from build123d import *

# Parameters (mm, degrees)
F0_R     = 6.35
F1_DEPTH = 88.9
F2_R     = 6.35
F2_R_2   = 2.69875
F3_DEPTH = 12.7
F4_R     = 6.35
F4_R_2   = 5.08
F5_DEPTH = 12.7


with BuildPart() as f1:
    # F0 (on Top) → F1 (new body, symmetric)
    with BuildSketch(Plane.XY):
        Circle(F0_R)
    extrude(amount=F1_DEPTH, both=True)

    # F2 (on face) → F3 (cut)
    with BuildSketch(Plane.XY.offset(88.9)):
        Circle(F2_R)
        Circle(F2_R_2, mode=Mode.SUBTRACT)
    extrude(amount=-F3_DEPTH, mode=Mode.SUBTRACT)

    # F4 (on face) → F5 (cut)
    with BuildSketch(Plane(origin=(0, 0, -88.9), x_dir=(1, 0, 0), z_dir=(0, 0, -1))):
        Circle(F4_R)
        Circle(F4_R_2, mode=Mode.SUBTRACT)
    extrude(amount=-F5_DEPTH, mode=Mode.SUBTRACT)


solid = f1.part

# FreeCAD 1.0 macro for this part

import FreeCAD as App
import Part
import Sketcher
Q = App.Units.Quantity

doc = App.newDocument("Part")
body = doc.addObject("PartDesign::Body", "Body")

# Sketch on XY plane
sketch1 = body.newObject("Sketcher::SketchObject", "Sketch")
sketch1.AttachmentSupport = (doc.getObject("XY_Plane"), [""])
sketch1.MapMode = "FlatFace"
sketch1.addGeometry(Part.Circle(App.Vector(0, 0, 0), App.Vector(0, 0, 1), 6.35), False)
sketch1.addConstraint([
    Sketcher.Constraint("Coincident", 0, 3, -1, 1),
    Sketcher.Constraint("Diameter", 0, Q("0.5 in")),
])
pad1 = body.newObject("PartDesign::Pad", "Pad")
pad1.Profile = sketch1
pad1.Length = Q("7 in")
pad1.Midplane = True

# Sketch on XY plane
sketch2 = body.newObject("Sketcher::SketchObject", "Sketch001")
sketch2.AttachmentSupport = (doc.getObject("XY_Plane"), [""])
sketch2.MapMode = "FlatFace"
sketch2.AttachmentOffset = App.Placement(App.Vector(0, 0, 3.5 * 25.4), App.Rotation())
sketch2.addGeometry([
    Part.Circle(App.Vector(0, 0, 0), App.Vector(0, 0, 1), 6.35),
    Part.Circle(App.Vector(0, 0, 0), App.Vector(0, 0, 1), 2.69875),
], False)
sketch2.addConstraint([
    Sketcher.Constraint("Coincident", 0, 3, -1, 1),
    Sketcher.Constraint("Coincident", 1, 3, -1, 1),
    Sketcher.Constraint("Diameter", 0, Q("0.5 in")),
    Sketcher.Constraint("Diameter", 1, Q("0.2125 in")),
])
pocket1 = body.newObject("PartDesign::Pocket", "Pocket")
pocket1.Profile = sketch2
pocket1.Length = Q("0.5 in")

# Sketch on XY plane
sketch3 = body.newObject("Sketcher::SketchObject", "Sketch002")
sketch3.AttachmentSupport = (doc.getObject("XY_Plane"), [""])
sketch3.MapMode = "FlatFace"
sketch3.AttachmentOffset = App.Placement(App.Vector(0, 0, -3.5 * 25.4), App.Rotation())
sketch3.addGeometry([
    Part.Circle(App.Vector(0, 0, 0), App.Vector(0, 0, 1), 6.35),
    Part.Circle(App.Vector(0, 0, 0), App.Vector(0, 0, 1), 5.08),
], False)
sketch3.addConstraint([
    Sketcher.Constraint("Coincident", 0, 3, -1, 1),
    Sketcher.Constraint("Coincident", 1, 3, -1, 1),
    Sketcher.Constraint("Diameter", 0, Q("0.5 in")),
    Sketcher.Constraint("Diameter", 1, Q("0.4 in")),
])
pocket2 = body.newObject("PartDesign::Pocket", "Pocket001")
pocket2.Profile = sketch3
pocket2.Length = Q("0.5 in")
pocket2.Reversed = True

doc.recompute()
